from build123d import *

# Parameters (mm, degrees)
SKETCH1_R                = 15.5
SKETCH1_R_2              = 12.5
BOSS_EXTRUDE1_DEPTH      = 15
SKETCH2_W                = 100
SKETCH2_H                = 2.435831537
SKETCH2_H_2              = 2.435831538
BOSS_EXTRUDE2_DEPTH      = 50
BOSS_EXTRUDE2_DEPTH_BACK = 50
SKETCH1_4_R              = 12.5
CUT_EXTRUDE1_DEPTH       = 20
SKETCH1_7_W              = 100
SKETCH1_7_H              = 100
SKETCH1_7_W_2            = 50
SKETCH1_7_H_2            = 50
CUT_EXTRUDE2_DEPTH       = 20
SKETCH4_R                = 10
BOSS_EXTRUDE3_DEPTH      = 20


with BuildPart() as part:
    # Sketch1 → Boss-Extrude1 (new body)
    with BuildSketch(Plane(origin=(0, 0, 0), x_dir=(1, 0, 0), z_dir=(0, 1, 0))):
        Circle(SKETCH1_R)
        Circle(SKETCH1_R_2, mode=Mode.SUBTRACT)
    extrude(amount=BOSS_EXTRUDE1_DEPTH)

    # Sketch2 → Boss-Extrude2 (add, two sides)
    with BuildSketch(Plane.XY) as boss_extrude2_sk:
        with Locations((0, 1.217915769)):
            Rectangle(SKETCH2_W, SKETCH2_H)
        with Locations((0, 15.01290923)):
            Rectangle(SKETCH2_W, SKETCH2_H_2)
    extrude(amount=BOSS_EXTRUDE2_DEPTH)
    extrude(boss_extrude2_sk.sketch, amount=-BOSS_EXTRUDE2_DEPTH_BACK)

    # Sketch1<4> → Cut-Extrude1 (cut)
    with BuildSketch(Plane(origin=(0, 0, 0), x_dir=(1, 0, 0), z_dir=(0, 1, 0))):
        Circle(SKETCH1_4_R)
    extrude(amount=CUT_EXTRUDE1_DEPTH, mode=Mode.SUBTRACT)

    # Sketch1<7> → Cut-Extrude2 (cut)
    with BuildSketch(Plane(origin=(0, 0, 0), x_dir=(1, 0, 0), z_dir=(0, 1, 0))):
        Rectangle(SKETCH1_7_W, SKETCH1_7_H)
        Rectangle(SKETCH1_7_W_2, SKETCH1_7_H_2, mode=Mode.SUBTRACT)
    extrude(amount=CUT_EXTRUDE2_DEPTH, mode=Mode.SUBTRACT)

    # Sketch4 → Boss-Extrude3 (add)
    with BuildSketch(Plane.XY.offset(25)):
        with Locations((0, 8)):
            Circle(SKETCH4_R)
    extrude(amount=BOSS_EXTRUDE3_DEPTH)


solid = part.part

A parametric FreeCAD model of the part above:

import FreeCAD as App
import Part
import Sketcher
Q = App.Units.Quantity


def add_polygon(sketch, points):
    """Adds a closed chain of lines whose ends are joined by coincident constraints."""
    first, n = sketch.GeometryCount, len(points)
    for a, b in zip(points, points[1:] + points[:1]):
        sketch.addGeometry(Part.LineSegment(App.Vector(*a, 0), App.Vector(*b, 0)), False)
    for i in range(n):
        sketch.addConstraint(Sketcher.Constraint("Coincident", first + i, 2, first + (i + 1) % n, 1))

doc = App.newDocument("Part")
body = doc.addObject("PartDesign::Body", "Body")

# Sketch on XZ plane
sketch1 = body.newObject("Sketcher::SketchObject", "Sketch")
sketch1.AttachmentSupport = (doc.getObject("XZ_Plane"), [""])
sketch1.MapMode = "FlatFace"
sketch1.addGeometry([
    Part.Circle(App.Vector(0, 0, 0), App.Vector(0, 0, 1), 16),
    Part.Circle(App.Vector(0, 0, 0), App.Vector(0, 0, 1), 12),
], False)
sketch1.addConstraint([
    Sketcher.Constraint("Coincident", 0, 3, -1, 1),
    Sketcher.Constraint("Coincident", 1, 3, -1, 1),
    Sketcher.Constraint("Diameter", 0, Q("31 mm")),
    Sketcher.Constraint("Diameter", 1, Q("25 mm")),
])
pad1 = body.newObject("PartDesign::Pad", "Pad")
pad1.Profile = sketch1
pad1.Length = 15
pad1.Reversed = True

# Sketch on XY plane
sketch2 = body.newObject("Sketcher::SketchObject", "Sketch001")
sketch2.AttachmentSupport = (doc.getObject("XY_Plane"), [""])
sketch2.MapMode = "FlatFace"
add_polygon(sketch2, [(-50, 2.4), (-50, 0), (50, 0), (50, 2.4)])  # lines 0-3
add_polygon(sketch2, [(-50, 16.2), (-50, 13.8), (50, 13.8), (50, 16.2)])  # lines 4-7
sketch2.addConstraint([
    Sketcher.Constraint("Vertical", 0),
    Sketcher.Constraint("Horizontal", 1),
    Sketcher.Constraint("Vertical", 2),
    Sketcher.Constraint("Horizontal", 3),
    Sketcher.Constraint("Vertical", 4),
    Sketcher.Constraint("Horizontal", 5),
    Sketcher.Constraint("Vertical", 6),
    Sketcher.Constraint("Horizontal", 7),
    Sketcher.Constraint("Symmetric", 0, 2, 1, 2, -1, 1),
    Sketcher.Constraint("Vertical", 3, 2, 4, 2),
    Sketcher.Constraint("Vertical", 2, 2, 5, 2),
    Sketcher.Constraint("Equal", 2, 4),
    Sketcher.Constraint("DistanceX", 1, 1, 1, 2, Q("100 mm")),
    Sketcher.Constraint("DistanceY", 0, 2, 0, 1, Q("2.435832 mm")),
    Sketcher.Constraint("DistanceY", 3, 2, 4, 2, Q("11.359162 mm")),
])
pad2 = body.newObject("PartDesign::Pad", "Pad001")
pad2.Profile = sketch2
pad2.Type = "TwoLengths"
pad2.Length = 50
pad2.Length2 = 50

# Sketch on XZ plane
sketch3 = body.newObject("Sketcher::SketchObject", "Sketch002")
sketch3.AttachmentSupport = (doc.getObject("XZ_Plane"), [""])
sketch3.MapMode = "FlatFace"
sketch3.addGeometry(Part.Circle(App.Vector(0, 0, 0), App.Vector(0, 0, 1), 12), False)
sketch3.addConstraint([
    Sketcher.Constraint("Coincident", 0, 3, -1, 1),
    Sketcher.Constraint("Diameter", 0, Q("25 mm")),
])
pocket1 = body.newObject("PartDesign::Pocket", "Pocket")
pocket1.Profile = sketch3
pocket1.Length = 20

# Sketch on XZ plane
sketch4 = body.newObject("Sketcher::SketchObject", "Sketch003")
sketch4.AttachmentSupport = (doc.getObject("XZ_Plane"), [""])
sketch4.MapMode = "FlatFace"
add_polygon(sketch4, [(-50, -50), (-50, 50), (50, 50), (50, -50)])  # lines 0-3
add_polygon(sketch4, [(25, 25), (-25, 25), (-25, -25), (25, -25)])  # lines 4-7
sketch4.addConstraint([
    Sketcher.Constraint("Vertical", 0),
    Sketcher.Constraint("Horizontal", 1),
    Sketcher.Constraint("Vertical", 2),
    Sketcher.Constraint("Horizontal", 3),
    Sketcher.Constraint("Horizontal", 4),
    Sketcher.Constraint("Vertical", 5),
    Sketcher.Constraint("Horizontal", 6),
    Sketcher.Constraint("Vertical", 7),
    Sketcher.Constraint("Symmetric", 0, 2, 2, 2, -1, 1),
    Sketcher.Constraint("Symmetric", 4, 2, 6, 2, -1, 1),
    Sketcher.Constraint("Equal", 3, 0),
    Sketcher.Constraint("Equal", 6, 5),
    Sketcher.Constraint("DistanceX", 1, 1, 1, 2, Q("100 mm")),
    Sketcher.Constraint("DistanceX", 4, 2, 4, 1, Q("50 mm")),
])
pocket2 = body.newObject("PartDesign::Pocket", "Pocket001")
pocket2.Profile = sketch4
pocket2.Length = 20

# Sketch on XY plane
sketch5 = body.newObject("Sketcher::SketchObject", "Sketch004")
sketch5.AttachmentSupport = (doc.getObject("XY_Plane"), [""])
sketch5.MapMode = "FlatFace"
sketch5.AttachmentOffset = App.Placement(App.Vector(0, 0, 25), App.Rotation())
sketch5.addGeometry(Part.Circle(App.Vector(0, 8, 0), App.Vector(0, 0, 1), 10), False)
sketch5.addConstraint([
    Sketcher.Constraint("PointOnObject", 0, 3, -2),
    Sketcher.Constraint("Diameter", 0, Q("20 mm")),
    Sketcher.Constraint("DistanceY", -1, 1, 0, 3, Q("8 mm")),
])
pad3 = body.newObject("PartDesign::Pad", "Pad002")
pad3.Profile = sketch5
pad3.Length = 20

doc.recompute()
